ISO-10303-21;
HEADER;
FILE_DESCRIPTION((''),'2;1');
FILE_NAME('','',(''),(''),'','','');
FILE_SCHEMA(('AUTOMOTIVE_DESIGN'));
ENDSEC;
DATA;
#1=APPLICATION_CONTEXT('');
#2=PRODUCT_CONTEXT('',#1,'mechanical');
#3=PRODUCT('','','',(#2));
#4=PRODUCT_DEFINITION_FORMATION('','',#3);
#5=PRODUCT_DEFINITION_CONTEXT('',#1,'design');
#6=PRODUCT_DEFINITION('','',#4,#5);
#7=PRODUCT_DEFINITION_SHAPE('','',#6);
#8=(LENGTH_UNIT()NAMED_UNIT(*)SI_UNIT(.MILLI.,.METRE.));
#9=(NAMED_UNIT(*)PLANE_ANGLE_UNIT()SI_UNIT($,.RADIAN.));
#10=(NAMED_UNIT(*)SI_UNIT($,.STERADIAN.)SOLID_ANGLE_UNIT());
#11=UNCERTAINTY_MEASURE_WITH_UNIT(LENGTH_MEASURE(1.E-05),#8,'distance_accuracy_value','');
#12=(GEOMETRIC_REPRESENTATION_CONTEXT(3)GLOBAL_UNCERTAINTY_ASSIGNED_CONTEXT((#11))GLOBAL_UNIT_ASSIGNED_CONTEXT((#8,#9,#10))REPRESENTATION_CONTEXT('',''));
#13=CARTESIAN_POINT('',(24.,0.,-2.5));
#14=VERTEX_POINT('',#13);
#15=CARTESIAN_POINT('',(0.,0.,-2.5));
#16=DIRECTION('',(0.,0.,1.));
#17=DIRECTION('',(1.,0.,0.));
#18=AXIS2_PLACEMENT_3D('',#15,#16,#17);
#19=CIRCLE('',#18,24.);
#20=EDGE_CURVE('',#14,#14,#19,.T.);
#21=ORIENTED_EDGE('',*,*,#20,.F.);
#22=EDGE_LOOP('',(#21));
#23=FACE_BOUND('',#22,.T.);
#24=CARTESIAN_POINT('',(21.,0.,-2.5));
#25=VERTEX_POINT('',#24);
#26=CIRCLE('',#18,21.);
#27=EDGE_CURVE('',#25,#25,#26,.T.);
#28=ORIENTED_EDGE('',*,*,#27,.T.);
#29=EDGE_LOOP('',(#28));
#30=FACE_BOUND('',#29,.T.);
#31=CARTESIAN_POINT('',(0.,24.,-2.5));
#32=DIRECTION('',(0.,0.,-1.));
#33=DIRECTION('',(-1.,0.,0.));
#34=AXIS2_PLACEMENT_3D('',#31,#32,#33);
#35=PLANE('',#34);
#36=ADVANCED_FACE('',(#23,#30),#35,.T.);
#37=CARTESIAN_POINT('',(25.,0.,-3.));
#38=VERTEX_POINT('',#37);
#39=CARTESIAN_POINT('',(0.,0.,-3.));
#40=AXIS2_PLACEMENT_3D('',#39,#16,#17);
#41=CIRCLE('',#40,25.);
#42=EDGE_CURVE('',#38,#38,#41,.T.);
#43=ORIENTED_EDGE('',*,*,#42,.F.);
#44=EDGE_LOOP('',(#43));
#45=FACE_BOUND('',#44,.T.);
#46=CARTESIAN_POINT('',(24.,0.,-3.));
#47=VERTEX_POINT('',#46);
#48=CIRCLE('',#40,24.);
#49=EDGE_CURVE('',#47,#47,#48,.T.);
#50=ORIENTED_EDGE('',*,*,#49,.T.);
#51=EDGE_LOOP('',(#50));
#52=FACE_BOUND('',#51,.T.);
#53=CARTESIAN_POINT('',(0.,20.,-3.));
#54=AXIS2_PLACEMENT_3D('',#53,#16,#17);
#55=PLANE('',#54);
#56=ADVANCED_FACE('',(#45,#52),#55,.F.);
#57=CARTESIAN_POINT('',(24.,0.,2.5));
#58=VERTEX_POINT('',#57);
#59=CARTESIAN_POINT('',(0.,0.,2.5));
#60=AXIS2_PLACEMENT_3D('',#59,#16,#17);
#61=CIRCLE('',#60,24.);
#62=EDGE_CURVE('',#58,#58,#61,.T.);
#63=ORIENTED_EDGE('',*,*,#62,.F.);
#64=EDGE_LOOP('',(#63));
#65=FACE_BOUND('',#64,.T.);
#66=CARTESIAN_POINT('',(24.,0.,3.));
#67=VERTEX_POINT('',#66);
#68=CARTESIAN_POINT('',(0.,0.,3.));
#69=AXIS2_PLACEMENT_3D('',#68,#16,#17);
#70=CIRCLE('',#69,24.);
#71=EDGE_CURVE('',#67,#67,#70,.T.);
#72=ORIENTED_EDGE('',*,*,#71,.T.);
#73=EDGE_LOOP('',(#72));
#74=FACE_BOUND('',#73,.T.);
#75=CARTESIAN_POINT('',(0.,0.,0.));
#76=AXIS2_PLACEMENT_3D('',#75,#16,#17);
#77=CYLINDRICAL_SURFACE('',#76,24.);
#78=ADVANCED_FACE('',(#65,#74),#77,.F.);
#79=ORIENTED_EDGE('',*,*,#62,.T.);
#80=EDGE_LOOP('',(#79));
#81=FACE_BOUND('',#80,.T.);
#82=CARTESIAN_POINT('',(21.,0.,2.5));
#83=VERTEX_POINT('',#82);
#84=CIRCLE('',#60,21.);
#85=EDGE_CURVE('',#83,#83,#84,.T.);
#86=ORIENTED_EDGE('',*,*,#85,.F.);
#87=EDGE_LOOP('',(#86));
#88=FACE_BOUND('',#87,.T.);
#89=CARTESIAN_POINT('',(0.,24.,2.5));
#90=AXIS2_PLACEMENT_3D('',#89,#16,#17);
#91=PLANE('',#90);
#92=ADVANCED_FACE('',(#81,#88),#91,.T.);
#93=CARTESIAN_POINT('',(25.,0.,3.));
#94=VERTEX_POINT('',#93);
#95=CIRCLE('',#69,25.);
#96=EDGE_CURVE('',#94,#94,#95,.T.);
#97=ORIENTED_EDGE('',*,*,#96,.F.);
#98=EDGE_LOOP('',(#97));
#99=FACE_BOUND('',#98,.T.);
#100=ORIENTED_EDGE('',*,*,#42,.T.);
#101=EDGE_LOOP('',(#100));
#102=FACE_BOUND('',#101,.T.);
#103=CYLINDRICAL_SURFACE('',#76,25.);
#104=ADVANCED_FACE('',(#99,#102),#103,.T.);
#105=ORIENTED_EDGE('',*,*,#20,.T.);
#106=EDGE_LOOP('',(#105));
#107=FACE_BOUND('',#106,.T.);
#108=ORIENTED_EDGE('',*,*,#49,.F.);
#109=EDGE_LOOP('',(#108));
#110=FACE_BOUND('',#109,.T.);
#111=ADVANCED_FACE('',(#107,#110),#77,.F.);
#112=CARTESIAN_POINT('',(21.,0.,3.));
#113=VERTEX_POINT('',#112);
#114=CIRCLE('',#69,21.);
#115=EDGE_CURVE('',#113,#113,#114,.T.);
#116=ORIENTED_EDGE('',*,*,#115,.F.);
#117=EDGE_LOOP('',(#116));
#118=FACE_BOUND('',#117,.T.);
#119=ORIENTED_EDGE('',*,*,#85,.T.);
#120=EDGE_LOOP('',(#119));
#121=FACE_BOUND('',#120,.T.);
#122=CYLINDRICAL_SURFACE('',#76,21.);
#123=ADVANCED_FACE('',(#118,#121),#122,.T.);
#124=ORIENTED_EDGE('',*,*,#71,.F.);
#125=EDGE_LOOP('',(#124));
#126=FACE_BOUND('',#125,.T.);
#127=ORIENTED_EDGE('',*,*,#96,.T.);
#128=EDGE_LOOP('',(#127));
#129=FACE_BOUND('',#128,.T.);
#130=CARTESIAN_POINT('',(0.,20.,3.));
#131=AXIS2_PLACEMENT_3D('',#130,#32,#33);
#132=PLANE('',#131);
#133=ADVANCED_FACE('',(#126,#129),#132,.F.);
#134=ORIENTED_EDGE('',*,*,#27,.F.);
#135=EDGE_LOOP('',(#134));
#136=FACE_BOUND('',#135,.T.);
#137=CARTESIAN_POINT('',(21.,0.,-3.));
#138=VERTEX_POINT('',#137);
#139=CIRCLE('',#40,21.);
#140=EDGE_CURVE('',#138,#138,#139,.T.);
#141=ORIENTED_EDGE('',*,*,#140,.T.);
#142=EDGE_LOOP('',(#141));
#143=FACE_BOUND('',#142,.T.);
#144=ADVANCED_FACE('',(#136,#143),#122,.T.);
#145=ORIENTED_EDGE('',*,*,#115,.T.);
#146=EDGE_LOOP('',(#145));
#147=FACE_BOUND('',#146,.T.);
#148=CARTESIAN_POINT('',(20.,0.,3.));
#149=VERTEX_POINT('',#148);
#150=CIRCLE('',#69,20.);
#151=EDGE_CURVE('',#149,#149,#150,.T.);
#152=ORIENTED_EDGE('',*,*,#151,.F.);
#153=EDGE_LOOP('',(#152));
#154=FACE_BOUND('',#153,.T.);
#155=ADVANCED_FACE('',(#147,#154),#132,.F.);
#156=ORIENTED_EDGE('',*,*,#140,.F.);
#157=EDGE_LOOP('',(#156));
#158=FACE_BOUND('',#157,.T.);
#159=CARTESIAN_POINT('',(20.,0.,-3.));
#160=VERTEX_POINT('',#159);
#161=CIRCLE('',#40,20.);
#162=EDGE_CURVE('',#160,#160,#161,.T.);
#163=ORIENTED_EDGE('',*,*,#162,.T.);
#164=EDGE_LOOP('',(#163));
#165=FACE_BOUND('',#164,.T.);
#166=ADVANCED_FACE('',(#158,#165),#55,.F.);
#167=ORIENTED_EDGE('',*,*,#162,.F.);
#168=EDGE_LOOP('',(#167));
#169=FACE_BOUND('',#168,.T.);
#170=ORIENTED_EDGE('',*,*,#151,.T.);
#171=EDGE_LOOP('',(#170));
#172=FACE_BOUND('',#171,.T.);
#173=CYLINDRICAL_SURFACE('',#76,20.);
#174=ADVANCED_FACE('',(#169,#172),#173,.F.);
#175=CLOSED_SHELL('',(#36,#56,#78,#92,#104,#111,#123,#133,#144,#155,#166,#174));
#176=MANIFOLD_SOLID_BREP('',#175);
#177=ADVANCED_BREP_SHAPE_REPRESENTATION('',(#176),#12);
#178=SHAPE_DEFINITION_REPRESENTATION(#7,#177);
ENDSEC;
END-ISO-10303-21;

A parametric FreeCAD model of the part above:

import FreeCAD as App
import Part
import Sketcher
Q = App.Units.Quantity


def add_polygon(sketch, points):
    """Adds a closed chain of lines whose ends are joined by coincident constraints."""
    first, n = sketch.GeometryCount, len(points)
    for a, b in zip(points, points[1:] + points[:1]):
        sketch.addGeometry(Part.LineSegment(App.Vector(*a, 0), App.Vector(*b, 0)), False)
    for i in range(n):
        sketch.addConstraint(Sketcher.Constraint("Coincident", first + i, 2, first + (i + 1) % n, 1))

doc = App.newDocument("Part")
body = doc.addObject("PartDesign::Body", "Body")

sketch1 = body.newObject("Sketcher::SketchObject", "Sketch")
sketch1.AttachmentSupport = (doc.getObject("YZ_Plane"), [""])
sketch1.MapMode = "FlatFace"
add_polygon(sketch1, [(25, 3), (20, 3), (20, -3), (25, -3)])
sketch1.addConstraint([
    Sketcher.Constraint("Horizontal", 0),
    Sketcher.Constraint("Vertical", 1),
    Sketcher.Constraint("Horizontal", 2),
    Sketcher.Constraint("Vertical", 3),
    Sketcher.Constraint("DistanceX", 0, 2, 0, 1, Q("5 mm")),
    Sketcher.Constraint("DistanceY", 1, 2, 1, 1, Q("6 mm")),
    Sketcher.Constraint("DistanceX", -1, 1, 0, 2, Q("20 mm")),
    Sketcher.Constraint("DistanceY", -1, 1, 0, 2, Q("3 mm")),
])
revolution = body.newObject("PartDesign::Revolution", "Revolution")
revolution.Profile = sketch1
revolution.ReferenceAxis = (sketch1, ["V_Axis"])
revolution.Angle = 360

sketch2 = body.newObject("Sketcher::SketchObject", "Sketch001")
sketch2.AttachmentSupport = (doc.getObject("YZ_Plane"), [""])
sketch2.MapMode = "FlatFace"
add_polygon(sketch2, [(24, -2.5), (21, -2.5), (21, -3), (24, -3)])
add_polygon(sketch2, [(24, 3), (21, 3), (21, 2.5), (24, 2.5)])
sketch2.addConstraint([
    Sketcher.Constraint("Horizontal", 0),
    Sketcher.Constraint("Vertical", 1),
    Sketcher.Constraint("Horizontal", 2),
    Sketcher.Constraint("Vertical", 3),
    Sketcher.Constraint("Horizontal", 4),
    Sketcher.Constraint("Vertical", 5),
    Sketcher.Constraint("Horizontal", 6),
    Sketcher.Constraint("Vertical", 7),
    Sketcher.Constraint("Symmetric", 1, 2, 4, 2, -1),
    Sketcher.Constraint("Symmetric", 3, 2, 6, 2, -1),
    Sketcher.Constraint("DistanceX", 0, 2, 0, 1, Q("3 mm")),
    Sketcher.Constraint("DistanceY", 1, 2, 1, 1, Q("0.5 mm")),
    Sketcher.Constraint("DistanceX", -1, 1, 0, 2, Q("21 mm")),
    Sketcher.Constraint("DistanceY", 1, 2, -1, 1, Q("3 mm")),
])
groove = body.newObject("PartDesign::Groove", "Groove")
groove.Profile = sketch2
groove.ReferenceAxis = (sketch2, ["V_Axis"])
groove.Angle = 360

doc.recompute()
